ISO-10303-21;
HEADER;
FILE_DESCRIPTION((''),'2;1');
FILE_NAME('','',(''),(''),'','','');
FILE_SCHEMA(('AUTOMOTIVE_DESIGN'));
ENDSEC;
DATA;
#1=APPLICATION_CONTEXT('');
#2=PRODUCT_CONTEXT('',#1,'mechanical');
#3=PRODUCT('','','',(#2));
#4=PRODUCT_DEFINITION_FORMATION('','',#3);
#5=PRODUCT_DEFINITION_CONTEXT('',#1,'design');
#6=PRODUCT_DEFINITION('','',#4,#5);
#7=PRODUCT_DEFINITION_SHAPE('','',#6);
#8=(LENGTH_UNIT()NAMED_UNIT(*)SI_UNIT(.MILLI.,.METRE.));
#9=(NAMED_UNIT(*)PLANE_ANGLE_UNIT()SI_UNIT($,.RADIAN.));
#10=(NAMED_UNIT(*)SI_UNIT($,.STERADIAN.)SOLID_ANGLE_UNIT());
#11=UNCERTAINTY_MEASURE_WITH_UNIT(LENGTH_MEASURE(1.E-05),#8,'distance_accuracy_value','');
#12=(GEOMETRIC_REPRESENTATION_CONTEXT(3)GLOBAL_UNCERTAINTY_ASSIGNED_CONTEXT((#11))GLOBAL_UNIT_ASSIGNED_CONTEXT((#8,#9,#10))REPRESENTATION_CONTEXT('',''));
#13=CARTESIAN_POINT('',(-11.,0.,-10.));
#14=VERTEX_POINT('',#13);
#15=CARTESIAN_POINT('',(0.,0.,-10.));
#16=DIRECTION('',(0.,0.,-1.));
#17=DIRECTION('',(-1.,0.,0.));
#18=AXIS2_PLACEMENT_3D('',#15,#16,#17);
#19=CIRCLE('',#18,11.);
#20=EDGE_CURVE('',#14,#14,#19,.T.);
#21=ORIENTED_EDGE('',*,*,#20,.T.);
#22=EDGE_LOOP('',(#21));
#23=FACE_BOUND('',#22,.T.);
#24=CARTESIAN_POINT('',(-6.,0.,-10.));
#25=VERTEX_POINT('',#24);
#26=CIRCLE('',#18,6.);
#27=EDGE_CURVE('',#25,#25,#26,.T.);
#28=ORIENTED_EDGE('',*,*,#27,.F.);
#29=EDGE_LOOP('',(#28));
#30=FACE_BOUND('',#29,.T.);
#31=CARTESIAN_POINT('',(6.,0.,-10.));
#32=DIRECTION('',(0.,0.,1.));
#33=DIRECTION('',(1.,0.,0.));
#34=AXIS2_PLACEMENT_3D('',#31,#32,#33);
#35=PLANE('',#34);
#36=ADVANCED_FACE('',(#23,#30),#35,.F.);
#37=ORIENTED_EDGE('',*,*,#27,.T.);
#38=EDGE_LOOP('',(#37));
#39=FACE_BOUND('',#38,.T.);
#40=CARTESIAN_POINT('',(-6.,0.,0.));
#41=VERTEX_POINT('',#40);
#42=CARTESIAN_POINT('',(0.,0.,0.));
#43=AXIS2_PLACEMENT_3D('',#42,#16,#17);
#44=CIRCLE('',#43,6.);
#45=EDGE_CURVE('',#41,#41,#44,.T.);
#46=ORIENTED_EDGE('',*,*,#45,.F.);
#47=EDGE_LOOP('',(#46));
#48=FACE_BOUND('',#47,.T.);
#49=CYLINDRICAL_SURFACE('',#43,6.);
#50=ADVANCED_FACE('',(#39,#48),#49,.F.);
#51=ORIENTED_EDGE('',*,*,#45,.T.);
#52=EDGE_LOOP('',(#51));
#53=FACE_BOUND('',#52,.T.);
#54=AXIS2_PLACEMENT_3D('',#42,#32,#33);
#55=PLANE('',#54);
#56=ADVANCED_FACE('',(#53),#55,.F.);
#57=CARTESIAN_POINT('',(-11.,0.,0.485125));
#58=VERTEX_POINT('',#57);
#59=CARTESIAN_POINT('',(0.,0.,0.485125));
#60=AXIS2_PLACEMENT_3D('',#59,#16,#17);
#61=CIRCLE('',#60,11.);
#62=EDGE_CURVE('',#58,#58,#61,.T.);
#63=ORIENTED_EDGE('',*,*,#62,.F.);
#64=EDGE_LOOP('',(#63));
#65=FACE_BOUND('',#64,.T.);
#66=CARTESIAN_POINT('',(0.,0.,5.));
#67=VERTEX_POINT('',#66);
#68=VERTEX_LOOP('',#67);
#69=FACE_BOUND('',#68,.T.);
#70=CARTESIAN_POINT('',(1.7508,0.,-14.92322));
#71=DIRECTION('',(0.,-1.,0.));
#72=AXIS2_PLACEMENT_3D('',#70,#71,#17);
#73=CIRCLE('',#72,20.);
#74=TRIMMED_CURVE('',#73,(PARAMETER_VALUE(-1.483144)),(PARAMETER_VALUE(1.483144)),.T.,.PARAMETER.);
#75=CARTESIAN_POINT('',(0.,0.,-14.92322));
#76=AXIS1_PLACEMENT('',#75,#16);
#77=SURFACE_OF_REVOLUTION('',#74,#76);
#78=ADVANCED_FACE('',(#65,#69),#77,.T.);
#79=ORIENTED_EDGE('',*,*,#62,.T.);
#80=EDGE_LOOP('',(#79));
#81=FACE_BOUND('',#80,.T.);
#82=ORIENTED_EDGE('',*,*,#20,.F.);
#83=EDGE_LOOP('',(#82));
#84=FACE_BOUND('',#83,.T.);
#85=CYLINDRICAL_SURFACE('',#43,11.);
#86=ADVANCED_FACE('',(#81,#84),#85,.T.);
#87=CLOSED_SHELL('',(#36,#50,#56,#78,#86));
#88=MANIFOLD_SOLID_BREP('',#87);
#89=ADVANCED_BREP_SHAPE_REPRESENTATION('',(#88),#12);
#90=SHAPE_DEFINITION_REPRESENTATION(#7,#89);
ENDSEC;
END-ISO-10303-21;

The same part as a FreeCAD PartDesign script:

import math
import FreeCAD as App
import Part
import Sketcher

V = App.Vector

doc = App.newDocument("Part")
body = doc.addObject("PartDesign::Body", "Body")

sketch1 = body.newObject("Sketcher::SketchObject", "Sketch")
sketch1.AttachmentSupport = (doc.getObject("XZ_Plane"), [""])
sketch1.MapMode = "FlatFace"
sketch1.addGeometry([
    Part.LineSegment(V(6, 0, 0), V(0, 0, 0)),
    Part.LineSegment(V(0, 0, 0), V(0, 5, 0)),
    Part.ArcOfCircle(Part.Circle(V(-2, -15, 0), V(0, 0, 1), 20), math.radians(50), math.radians(85)),
    Part.LineSegment(V(11, 0, 0), V(11, -10, 0)),
    Part.LineSegment(V(11, -10, 0), V(6, -10, 0)),
    Part.LineSegment(V(6, -10, 0), V(6, 0, 0)),
], False)
sketch1.addConstraint([
    Sketcher.Constraint("Coincident", 0, 2, 1, 1),
    Sketcher.Constraint("Coincident", 1, 2, 2, 2),
    Sketcher.Constraint("Coincident", 2, 1, 3, 1),
    Sketcher.Constraint("Coincident", 3, 2, 4, 1),
    Sketcher.Constraint("Coincident", 4, 2, 5, 1),
    Sketcher.Constraint("Coincident", 5, 2, 0, 1),
    Sketcher.Constraint("Horizontal", 0),
    Sketcher.Constraint("Vertical", 1),
    Sketcher.Constraint("Vertical", 3),
    Sketcher.Constraint("Horizontal", 4),
    Sketcher.Constraint("Vertical", 5),
    Sketcher.Constraint("Coincident", 0, 2, -1, 1),
    Sketcher.Constraint("Equal", 4, 1),
    Sketcher.Constraint("Radius", 2, 20.0),
    Sketcher.Constraint("DistanceX", 0, 2, 0, 1, 6.0),
    Sketcher.Constraint("DistanceX", 4, 2, 4, 1, 5.0),
    Sketcher.Constraint("DistanceY", 5, 1, 5, 2, 10.0),
    Sketcher.Constraint("DistanceX", 2, 3, -1, 1, 1.7508),
])
revolution = body.newObject("PartDesign::Revolution", "Revolution")
revolution.Profile = sketch1
revolution.ReferenceAxis = (sketch1, ["V_Axis"])
revolution.Angle = 360

doc.recompute()
